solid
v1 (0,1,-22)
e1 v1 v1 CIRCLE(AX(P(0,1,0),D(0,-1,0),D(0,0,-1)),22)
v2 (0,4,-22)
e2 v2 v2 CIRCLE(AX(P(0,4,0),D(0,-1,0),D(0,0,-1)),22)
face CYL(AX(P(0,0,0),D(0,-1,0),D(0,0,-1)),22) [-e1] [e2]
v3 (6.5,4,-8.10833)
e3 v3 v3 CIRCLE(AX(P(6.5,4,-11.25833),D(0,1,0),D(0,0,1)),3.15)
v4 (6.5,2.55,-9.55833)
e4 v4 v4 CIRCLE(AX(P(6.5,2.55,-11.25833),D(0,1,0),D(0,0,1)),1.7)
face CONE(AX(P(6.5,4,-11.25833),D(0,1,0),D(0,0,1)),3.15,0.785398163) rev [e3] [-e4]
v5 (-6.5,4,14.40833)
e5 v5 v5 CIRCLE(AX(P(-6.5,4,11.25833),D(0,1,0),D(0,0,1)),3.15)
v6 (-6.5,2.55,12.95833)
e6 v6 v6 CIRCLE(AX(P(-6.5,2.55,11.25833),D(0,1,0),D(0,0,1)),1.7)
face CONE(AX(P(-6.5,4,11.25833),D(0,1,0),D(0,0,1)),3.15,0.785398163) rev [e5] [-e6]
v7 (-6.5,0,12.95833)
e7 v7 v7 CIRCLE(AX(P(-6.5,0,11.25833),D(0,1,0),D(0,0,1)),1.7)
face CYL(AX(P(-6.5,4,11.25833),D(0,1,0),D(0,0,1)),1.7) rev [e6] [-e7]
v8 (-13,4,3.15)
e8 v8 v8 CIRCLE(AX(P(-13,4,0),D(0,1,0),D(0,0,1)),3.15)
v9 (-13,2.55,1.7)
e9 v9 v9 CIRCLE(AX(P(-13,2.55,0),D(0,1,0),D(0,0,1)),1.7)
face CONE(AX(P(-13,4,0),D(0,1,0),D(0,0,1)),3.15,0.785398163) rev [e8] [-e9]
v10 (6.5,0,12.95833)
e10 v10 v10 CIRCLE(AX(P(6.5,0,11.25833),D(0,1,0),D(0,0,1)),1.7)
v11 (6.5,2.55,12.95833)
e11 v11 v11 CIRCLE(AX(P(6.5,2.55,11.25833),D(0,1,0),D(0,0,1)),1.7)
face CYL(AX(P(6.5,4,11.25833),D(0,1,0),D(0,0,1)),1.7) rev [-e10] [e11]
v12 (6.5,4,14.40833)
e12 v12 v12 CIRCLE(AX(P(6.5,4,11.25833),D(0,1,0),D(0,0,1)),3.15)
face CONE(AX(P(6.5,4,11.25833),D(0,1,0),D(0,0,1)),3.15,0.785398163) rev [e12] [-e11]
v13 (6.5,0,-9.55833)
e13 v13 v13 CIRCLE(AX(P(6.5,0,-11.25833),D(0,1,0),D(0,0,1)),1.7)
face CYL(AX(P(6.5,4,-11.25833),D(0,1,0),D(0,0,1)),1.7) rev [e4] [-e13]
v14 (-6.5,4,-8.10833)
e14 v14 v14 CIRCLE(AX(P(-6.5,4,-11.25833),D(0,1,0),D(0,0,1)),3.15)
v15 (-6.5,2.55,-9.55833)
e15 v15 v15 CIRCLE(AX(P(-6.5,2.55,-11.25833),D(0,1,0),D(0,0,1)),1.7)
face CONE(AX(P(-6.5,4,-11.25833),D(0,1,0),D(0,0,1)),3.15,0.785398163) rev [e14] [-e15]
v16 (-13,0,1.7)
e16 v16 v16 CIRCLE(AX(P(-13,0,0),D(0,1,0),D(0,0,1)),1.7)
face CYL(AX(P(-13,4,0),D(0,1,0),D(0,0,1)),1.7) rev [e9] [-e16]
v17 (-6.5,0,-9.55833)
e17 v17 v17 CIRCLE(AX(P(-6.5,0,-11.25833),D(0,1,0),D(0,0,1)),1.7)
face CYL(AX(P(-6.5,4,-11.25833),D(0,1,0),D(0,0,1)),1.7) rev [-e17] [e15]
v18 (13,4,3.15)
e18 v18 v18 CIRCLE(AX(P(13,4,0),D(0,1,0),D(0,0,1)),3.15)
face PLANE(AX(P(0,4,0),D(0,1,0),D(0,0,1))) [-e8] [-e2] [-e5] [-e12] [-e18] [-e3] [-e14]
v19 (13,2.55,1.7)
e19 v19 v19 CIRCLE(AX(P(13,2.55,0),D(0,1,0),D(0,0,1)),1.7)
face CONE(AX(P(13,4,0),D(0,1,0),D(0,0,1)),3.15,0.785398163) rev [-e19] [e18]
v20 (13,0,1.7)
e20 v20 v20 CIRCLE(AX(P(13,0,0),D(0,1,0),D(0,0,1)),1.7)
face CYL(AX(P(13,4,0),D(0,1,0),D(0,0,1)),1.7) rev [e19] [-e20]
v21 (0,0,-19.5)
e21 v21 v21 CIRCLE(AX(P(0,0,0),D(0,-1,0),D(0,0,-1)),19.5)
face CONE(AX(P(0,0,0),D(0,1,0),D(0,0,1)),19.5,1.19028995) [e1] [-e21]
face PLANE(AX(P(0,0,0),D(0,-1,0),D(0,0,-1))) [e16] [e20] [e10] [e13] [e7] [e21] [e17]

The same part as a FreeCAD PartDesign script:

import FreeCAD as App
import Part
import Sketcher
from FreeCAD import Vector
Q = App.Units.Quantity


def add_polygon(sketch, points):
    """Adds a closed chain of lines whose ends are joined by coincident constraints."""
    first, n = sketch.GeometryCount, len(points)
    for a, b in zip(points, points[1:] + points[:1]):
        sketch.addGeometry(Part.LineSegment(App.Vector(*a, 0), App.Vector(*b, 0)), False)
    for i in range(n):
        sketch.addConstraint(Sketcher.Constraint("Coincident", first + i, 2, first + (i + 1) % n, 1))

doc = App.newDocument("Part")
body = doc.addObject("PartDesign::Body", "Body")

sketch1 = body.newObject("Sketcher::SketchObject", "Sketch")
sketch1.AttachmentSupport = (doc.getObject("YZ_Plane"), [""])
sketch1.MapMode = "FlatFace"
add_polygon(sketch1, [(1, -22), (4, -22), (4, 0), (0, 0), (0, -19.5)])
sketch1.addConstraint(Sketcher.Constraint("Horizontal", 0))
sketch1.addConstraint(Sketcher.Constraint("Vertical", 1))
sketch1.addConstraint(Sketcher.Constraint("Horizontal", 2))
sketch1.addConstraint(Sketcher.Constraint("Vertical", 3))
sketch1.addConstraint(Sketcher.Constraint("Coincident", 2, 2, -1, 1))
sketch1.addConstraint(Sketcher.Constraint("DistanceX", 0, 1, 0, 2, Q("3 mm")))
sketch1.addConstraint(Sketcher.Constraint("DistanceX", 2, 2, 2, 1, Q("4 mm")))
sketch1.addConstraint(Sketcher.Constraint("DistanceY", 1, 1, 1, 2, Q("22 mm")))
sketch1.addConstraint(Sketcher.Constraint("DistanceY", 3, 2, 3, 1, Q("19.5 mm")))
revolution = body.newObject("PartDesign::Revolution", "Revolution")
revolution.Profile = sketch1
revolution.ReferenceAxis = (sketch1, ["H_Axis"])
revolution.Angle = 360

sketch2 = body.newObject("Sketcher::SketchObject", "Sketch001")
sketch2.AttachmentSupport = (doc.getObject("XZ_Plane"), [""])
sketch2.MapMode = "FlatFace"
sketch2.AttachmentOffset = App.Placement(Vector(0, 0, -4), App.Rotation())
sketch2.addGeometry(Part.Circle(Vector(6.5, -11.25833, 0), Vector(0, 0, 1), 1.7), False)
sketch2.addGeometry(Part.Circle(Vector(13, 0, 0), Vector(0, 0, 1), 1.7), False)
sketch2.addGeometry(Part.Circle(Vector(6.5, 11.25833, 0), Vector(0, 0, 1), 1.7), False)
sketch2.addGeometry(Part.Circle(Vector(-6.5, 11.25833, 0), Vector(0, 0, 1), 1.7), False)
sketch2.addGeometry(Part.Circle(Vector(-13, 0, 0), Vector(0, 0, 1), 1.7), False)
sketch2.addGeometry(Part.Circle(Vector(-6.5, -11.25833, 0), Vector(0, 0, 1), 1.7), False)
sketch2.addConstraint(Sketcher.Constraint("Equal", 0, 1))
sketch2.addConstraint(Sketcher.Constraint("Equal", 1, 2))
sketch2.addConstraint(Sketcher.Constraint("Equal", 2, 3))
sketch2.addConstraint(Sketcher.Constraint("Equal", 3, 4))
sketch2.addConstraint(Sketcher.Constraint("Equal", 4, 5))
sketch2.addConstraint(Sketcher.Constraint("Symmetric", 0, 3, 3, 3, -1, 1))
sketch2.addConstraint(Sketcher.Constraint("Symmetric", 1, 3, 4, 3, -1, 1))
sketch2.addConstraint(Sketcher.Constraint("Symmetric", 2, 3, 5, 3, -1, 1))
sketch2.addConstraint(Sketcher.Constraint("Symmetric", 2, 3, 3, 3, -2))
sketch2.addConstraint(Sketcher.Constraint("PointOnObject", 1, 3, -1))
sketch2.addConstraint(Sketcher.Constraint("Diameter", 0, Q("3.4 mm")))
sketch2.addConstraint(Sketcher.Constraint("DistanceX", -1, 1, 1, 3, Q("13 mm")))
sketch2.addConstraint(Sketcher.Constraint("DistanceX", 3, 3, 2, 3, Q("13 mm")))
sketch2.addConstraint(Sketcher.Constraint("DistanceY", 0, 3, -1, 1, Q("11.25833 mm")))
doc.recompute()
hole = body.newObject("PartDesign::Hole", "Hole")
hole.Profile = sketch2
hole.ThreadType = "None"
hole.Diameter = 3.4
hole.DepthType = "ThroughAll"
hole.HoleCutType = "Countersink"
hole.HoleCutDiameter = 6.3
hole.HoleCutCountersinkAngle = 90
hole.Reversed = True

doc.recompute()
